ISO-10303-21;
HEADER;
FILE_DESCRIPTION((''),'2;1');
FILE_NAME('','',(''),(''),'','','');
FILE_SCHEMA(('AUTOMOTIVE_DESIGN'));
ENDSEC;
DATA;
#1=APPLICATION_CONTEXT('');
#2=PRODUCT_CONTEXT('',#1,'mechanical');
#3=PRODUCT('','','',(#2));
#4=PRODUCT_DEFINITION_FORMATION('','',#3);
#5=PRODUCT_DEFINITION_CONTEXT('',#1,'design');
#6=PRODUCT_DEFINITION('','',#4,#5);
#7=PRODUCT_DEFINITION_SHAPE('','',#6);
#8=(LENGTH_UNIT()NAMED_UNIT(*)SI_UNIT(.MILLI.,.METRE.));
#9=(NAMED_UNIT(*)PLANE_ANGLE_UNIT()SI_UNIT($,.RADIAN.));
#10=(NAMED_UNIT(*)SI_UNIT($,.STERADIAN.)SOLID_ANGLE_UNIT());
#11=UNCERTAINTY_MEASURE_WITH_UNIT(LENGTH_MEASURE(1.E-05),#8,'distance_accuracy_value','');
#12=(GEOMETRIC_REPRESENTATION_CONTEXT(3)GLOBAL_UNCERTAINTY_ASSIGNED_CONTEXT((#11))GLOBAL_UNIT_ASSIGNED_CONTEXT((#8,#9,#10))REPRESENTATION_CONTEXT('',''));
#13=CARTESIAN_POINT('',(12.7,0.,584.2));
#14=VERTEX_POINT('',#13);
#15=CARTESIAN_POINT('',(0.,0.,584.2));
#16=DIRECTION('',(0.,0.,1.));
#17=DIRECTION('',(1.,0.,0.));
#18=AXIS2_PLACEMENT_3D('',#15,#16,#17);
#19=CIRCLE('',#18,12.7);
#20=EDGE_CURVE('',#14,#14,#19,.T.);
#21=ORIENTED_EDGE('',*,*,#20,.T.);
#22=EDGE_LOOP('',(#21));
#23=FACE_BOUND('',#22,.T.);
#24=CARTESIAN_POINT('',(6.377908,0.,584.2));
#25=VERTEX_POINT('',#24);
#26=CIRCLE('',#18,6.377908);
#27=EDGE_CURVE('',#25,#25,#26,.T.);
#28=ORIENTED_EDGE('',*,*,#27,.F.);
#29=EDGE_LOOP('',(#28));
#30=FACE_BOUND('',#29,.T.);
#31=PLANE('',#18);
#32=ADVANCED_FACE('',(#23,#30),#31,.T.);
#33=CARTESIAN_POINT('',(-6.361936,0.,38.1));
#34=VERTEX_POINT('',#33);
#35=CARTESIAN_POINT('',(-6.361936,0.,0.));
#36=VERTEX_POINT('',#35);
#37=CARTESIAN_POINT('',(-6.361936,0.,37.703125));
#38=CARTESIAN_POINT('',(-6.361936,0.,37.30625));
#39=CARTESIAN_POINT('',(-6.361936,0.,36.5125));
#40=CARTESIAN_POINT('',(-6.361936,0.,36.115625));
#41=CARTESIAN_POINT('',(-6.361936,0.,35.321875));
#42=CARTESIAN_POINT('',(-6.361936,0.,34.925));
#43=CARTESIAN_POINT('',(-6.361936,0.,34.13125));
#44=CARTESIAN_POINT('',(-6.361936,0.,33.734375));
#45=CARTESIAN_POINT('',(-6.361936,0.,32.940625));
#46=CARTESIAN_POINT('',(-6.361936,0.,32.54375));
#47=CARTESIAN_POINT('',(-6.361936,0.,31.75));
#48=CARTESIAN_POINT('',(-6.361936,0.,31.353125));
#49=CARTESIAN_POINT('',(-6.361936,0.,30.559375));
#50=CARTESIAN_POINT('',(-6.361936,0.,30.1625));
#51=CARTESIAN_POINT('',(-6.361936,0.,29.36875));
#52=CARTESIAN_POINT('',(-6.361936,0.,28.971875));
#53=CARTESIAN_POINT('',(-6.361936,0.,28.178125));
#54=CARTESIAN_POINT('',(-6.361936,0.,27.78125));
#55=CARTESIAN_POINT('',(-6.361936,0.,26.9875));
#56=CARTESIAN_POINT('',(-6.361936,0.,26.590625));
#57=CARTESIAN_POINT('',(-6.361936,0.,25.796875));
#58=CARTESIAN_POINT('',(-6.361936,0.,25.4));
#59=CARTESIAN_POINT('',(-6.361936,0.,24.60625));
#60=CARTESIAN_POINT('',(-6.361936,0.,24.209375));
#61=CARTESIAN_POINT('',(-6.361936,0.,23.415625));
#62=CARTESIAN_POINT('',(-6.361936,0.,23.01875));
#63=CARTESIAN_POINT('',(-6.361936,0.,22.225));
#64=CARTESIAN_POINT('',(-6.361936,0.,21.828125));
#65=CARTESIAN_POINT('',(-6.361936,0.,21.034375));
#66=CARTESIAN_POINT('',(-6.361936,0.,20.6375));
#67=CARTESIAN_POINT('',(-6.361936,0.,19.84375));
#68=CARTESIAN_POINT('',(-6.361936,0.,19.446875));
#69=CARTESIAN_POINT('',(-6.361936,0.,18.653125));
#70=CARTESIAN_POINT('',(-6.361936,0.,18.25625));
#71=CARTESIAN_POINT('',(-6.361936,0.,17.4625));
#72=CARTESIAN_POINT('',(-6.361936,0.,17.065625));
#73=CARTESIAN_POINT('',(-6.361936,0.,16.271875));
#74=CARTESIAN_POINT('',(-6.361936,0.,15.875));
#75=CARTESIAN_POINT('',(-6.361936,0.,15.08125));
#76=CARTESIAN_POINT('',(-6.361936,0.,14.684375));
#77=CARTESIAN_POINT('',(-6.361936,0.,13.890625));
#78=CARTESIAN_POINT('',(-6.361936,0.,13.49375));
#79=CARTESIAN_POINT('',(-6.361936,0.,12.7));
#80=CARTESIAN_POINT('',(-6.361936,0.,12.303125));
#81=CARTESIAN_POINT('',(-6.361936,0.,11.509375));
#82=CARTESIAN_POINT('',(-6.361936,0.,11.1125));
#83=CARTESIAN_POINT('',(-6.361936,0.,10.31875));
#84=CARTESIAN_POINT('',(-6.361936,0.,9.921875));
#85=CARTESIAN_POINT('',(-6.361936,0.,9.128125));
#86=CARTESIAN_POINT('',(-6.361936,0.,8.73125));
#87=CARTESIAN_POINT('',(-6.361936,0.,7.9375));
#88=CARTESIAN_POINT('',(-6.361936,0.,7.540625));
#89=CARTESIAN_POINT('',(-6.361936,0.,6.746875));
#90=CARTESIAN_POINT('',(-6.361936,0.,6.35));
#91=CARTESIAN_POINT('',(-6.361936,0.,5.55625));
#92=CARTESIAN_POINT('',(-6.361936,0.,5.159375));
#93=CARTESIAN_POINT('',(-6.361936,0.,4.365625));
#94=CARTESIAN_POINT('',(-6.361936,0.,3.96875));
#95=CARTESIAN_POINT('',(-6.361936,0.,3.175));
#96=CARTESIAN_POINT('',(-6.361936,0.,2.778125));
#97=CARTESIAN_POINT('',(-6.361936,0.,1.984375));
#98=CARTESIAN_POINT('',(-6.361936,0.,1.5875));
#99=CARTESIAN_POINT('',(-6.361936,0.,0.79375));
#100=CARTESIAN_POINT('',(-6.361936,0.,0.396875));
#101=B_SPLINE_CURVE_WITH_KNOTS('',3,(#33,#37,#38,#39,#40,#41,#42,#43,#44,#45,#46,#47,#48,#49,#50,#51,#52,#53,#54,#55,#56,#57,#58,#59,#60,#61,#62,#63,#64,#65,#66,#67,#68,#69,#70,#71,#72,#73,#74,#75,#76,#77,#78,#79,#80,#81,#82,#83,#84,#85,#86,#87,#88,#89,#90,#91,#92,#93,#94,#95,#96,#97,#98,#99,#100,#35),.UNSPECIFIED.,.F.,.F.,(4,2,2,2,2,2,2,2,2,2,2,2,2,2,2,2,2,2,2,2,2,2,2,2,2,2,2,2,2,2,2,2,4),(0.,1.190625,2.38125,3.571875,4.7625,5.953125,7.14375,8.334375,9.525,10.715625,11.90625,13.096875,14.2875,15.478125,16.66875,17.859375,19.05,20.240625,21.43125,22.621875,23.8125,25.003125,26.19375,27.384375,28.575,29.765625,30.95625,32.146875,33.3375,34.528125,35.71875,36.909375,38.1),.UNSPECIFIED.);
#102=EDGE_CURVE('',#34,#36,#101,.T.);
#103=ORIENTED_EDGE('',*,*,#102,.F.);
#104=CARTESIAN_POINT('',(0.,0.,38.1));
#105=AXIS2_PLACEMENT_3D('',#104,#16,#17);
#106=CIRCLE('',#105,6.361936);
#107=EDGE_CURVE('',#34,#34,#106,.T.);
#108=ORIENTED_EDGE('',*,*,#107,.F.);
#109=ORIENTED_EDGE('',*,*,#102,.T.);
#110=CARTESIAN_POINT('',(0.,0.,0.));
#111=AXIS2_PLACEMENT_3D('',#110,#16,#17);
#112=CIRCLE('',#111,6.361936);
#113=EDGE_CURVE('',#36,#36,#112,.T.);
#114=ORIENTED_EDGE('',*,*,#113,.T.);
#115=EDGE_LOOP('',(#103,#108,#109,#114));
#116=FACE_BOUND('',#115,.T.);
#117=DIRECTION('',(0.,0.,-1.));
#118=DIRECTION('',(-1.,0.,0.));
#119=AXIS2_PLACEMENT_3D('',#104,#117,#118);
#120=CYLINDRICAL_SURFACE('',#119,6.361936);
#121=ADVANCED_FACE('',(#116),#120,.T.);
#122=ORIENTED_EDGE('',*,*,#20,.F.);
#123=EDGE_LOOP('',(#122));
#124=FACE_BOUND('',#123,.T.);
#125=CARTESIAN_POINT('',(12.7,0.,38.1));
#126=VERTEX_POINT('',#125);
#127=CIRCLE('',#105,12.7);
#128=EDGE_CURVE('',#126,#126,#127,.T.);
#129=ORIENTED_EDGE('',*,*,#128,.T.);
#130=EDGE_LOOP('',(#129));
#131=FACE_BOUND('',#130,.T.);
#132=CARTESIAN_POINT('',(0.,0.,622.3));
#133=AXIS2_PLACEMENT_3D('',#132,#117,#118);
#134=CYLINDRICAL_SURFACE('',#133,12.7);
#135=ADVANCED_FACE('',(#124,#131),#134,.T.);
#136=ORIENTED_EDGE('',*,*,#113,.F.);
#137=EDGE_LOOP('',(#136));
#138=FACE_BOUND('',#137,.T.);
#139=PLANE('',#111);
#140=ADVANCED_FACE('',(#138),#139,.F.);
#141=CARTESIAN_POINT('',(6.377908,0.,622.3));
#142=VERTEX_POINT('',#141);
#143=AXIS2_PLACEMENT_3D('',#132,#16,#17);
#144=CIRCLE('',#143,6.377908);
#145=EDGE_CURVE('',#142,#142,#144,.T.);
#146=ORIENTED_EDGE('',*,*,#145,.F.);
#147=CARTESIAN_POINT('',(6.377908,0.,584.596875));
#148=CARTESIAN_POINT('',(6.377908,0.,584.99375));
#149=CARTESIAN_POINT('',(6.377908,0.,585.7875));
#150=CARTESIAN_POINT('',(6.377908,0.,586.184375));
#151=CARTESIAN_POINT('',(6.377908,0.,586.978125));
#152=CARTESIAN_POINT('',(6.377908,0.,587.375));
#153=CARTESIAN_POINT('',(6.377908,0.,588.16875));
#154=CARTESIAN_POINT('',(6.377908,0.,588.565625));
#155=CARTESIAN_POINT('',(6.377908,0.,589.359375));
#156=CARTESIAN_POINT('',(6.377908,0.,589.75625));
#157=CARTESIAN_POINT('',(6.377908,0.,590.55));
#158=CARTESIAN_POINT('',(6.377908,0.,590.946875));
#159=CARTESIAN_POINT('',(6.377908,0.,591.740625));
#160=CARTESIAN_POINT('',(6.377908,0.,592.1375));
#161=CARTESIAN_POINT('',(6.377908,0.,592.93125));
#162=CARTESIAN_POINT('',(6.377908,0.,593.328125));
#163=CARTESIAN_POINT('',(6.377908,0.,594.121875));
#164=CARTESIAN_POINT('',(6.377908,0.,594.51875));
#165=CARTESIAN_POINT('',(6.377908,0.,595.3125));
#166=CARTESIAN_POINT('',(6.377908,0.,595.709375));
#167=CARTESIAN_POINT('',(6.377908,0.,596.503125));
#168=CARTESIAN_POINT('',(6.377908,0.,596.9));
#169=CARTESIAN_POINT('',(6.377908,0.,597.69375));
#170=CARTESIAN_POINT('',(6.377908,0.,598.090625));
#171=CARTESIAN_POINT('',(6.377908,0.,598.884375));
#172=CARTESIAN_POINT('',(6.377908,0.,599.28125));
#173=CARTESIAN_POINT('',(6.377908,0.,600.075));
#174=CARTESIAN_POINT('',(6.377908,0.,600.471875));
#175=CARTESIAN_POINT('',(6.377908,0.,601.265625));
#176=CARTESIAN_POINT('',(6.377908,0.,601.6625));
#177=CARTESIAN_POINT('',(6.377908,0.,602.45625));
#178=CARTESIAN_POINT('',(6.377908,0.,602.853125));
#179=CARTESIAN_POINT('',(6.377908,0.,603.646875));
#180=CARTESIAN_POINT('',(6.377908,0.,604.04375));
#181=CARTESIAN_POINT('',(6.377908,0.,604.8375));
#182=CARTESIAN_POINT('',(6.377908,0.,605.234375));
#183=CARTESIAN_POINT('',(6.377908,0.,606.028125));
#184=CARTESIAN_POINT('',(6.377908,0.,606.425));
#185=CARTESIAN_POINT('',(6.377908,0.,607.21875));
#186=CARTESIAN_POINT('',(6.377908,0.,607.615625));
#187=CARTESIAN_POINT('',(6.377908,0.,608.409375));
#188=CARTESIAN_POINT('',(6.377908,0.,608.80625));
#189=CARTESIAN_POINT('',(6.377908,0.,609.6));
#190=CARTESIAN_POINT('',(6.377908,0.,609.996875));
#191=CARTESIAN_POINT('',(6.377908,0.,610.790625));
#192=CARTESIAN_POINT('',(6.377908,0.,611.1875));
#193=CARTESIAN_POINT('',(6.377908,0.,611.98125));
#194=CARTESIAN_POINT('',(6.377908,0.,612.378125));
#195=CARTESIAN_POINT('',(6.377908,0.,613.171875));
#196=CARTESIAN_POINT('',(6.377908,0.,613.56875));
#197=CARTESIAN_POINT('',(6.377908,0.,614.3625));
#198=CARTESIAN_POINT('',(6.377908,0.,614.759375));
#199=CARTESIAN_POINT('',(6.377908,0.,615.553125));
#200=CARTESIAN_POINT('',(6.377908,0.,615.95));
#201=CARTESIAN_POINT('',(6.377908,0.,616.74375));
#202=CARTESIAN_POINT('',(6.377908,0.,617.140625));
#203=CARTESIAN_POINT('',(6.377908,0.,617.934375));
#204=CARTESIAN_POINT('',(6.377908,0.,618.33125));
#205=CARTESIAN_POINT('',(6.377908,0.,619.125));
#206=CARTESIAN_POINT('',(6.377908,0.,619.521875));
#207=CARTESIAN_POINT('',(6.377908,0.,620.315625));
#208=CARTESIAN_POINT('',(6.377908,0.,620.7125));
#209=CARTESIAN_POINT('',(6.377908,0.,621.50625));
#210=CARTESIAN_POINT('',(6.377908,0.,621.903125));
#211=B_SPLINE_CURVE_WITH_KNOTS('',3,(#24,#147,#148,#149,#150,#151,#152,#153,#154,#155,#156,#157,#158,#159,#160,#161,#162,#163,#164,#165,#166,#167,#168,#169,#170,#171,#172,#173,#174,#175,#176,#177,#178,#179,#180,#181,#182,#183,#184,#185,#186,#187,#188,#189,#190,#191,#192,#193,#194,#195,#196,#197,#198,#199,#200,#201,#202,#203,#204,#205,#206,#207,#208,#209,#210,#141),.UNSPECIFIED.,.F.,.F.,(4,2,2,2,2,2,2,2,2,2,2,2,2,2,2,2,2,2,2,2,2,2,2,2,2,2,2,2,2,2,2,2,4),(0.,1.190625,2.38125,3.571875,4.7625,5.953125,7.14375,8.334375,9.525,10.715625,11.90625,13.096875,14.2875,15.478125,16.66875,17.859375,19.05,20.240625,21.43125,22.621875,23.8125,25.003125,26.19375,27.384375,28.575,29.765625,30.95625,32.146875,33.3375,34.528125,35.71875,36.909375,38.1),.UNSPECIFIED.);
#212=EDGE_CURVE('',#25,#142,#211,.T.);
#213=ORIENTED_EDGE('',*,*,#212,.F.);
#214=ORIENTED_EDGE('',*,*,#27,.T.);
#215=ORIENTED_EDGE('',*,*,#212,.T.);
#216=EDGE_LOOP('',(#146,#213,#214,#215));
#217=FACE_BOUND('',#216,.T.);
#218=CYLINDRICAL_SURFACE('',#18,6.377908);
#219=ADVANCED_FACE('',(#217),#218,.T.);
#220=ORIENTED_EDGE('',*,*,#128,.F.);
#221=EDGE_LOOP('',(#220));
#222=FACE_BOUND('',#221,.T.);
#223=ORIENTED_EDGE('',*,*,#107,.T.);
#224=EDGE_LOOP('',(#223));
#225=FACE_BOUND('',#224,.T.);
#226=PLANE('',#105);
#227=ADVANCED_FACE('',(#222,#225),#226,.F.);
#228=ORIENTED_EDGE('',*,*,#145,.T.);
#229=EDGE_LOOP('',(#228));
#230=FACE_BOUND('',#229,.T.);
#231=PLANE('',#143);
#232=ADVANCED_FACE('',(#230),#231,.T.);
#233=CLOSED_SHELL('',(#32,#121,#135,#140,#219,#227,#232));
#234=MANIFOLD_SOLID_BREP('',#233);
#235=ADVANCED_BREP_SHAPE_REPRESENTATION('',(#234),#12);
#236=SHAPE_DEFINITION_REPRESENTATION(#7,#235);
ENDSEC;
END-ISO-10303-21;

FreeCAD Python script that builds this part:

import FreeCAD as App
import Part
import Sketcher
from FreeCAD import Vector
Q = App.Units.Quantity

doc = App.newDocument("Part")
body = doc.addObject("PartDesign::Body", "Body")

# Sketch on XY plane
sketch1 = body.newObject("Sketcher::SketchObject", "Sketch")
sketch1.AttachmentSupport = (doc.getObject("XY_Plane"), [""])
sketch1.MapMode = "FlatFace"
sketch1.addGeometry(Part.Circle(Vector(0, 0, 0), Vector(0, 0, 1), 13), False)
sketch1.addConstraint(Sketcher.Constraint("Coincident", 0, 3, -1, 1))
sketch1.addConstraint(Sketcher.Constraint("Diameter", 0, Q("1 in")))
pad1 = body.newObject("PartDesign::Pad", "Pad")
pad1.Profile = sketch1
pad1.Length = Q("24.5 in")

# Sketch on XY plane
sketch2 = body.newObject("Sketcher::SketchObject", "Sketch001")
sketch2.AttachmentSupport = (doc.getObject("XY_Plane"), [""])
sketch2.MapMode = "FlatFace"
sketch2.addGeometry(Part.LineSegment(Vector(-76, 76, 0), Vector(-76, -76, 0)), False)
sketch2.addGeometry(Part.LineSegment(Vector(-76, -76, 0), Vector(76, -76, 0)), False)
sketch2.addGeometry(Part.LineSegment(Vector(76, -76, 0), Vector(76, 76, 0)), False)
sketch2.addGeometry(Part.LineSegment(Vector(76, 76, 0), Vector(-76, 76, 0)), False)
sketch2.addGeometry(Part.Circle(Vector(0, 0, 0), Vector(0, 0, 1), 6), False)
sketch2.addConstraint(Sketcher.Constraint("Coincident", 0, 2, 1, 1))
sketch2.addConstraint(Sketcher.Constraint("Coincident", 1, 2, 2, 1))
sketch2.addConstraint(Sketcher.Constraint("Coincident", 2, 2, 3, 1))
sketch2.addConstraint(Sketcher.Constraint("Coincident", 3, 2, 0, 1))
sketch2.addConstraint(Sketcher.Constraint("Vertical", 0))
sketch2.addConstraint(Sketcher.Constraint("Horizontal", 1))
sketch2.addConstraint(Sketcher.Constraint("Vertical", 2))
sketch2.addConstraint(Sketcher.Constraint("Horizontal", 3))
sketch2.addConstraint(Sketcher.Constraint("Coincident", 4, 3, -1, 1))
sketch2.addConstraint(Sketcher.Constraint("Symmetric", 0, 2, 2, 2, -1, 1))
sketch2.addConstraint(Sketcher.Constraint("Equal", 3, 0))
sketch2.addConstraint(Sketcher.Constraint("Diameter", 4, Q("12.723871 mm")))
sketch2.addConstraint(Sketcher.Constraint("DistanceX", 1, 1, 1, 2, Q("152.068 mm")))
pocket1 = body.newObject("PartDesign::Pocket", "Pocket")
pocket1.Profile = sketch2
pocket1.Length = Q("1.5 in")
pocket1.Reversed = True

# Sketch on XY plane
sketch3 = body.newObject("Sketcher::SketchObject", "Sketch002")
sketch3.AttachmentSupport = (doc.getObject("XY_Plane"), [""])
sketch3.MapMode = "FlatFace"
sketch3.AttachmentOffset = App.Placement(Vector(0, 0, 24.5 * 25.4), App.Rotation())
sketch3.addGeometry(Part.LineSegment(Vector(-76, 76, 0), Vector(-76, -76, 0)), False)
sketch3.addGeometry(Part.LineSegment(Vector(-76, -76, 0), Vector(76, -76, 0)), False)
sketch3.addGeometry(Part.LineSegment(Vector(76, -76, 0), Vector(76, 76, 0)), False)
sketch3.addGeometry(Part.LineSegment(Vector(76, 76, 0), Vector(-76, 76, 0)), False)
sketch3.addGeometry(Part.Circle(Vector(0, 0, 0), Vector(0, 0, 1), 6), False)
sketch3.addConstraint(Sketcher.Constraint("Coincident", 0, 2, 1, 1))
sketch3.addConstraint(Sketcher.Constraint("Coincident", 1, 2, 2, 1))
sketch3.addConstraint(Sketcher.Constraint("Coincident", 2, 2, 3, 1))
sketch3.addConstraint(Sketcher.Constraint("Coincident", 3, 2, 0, 1))
sketch3.addConstraint(Sketcher.Constraint("Vertical", 0))
sketch3.addConstraint(Sketcher.Constraint("Horizontal", 1))
sketch3.addConstraint(Sketcher.Constraint("Vertical", 2))
sketch3.addConstraint(Sketcher.Constraint("Horizontal", 3))
sketch3.addConstraint(Sketcher.Constraint("Coincident", 4, 3, -1, 1))
sketch3.addConstraint(Sketcher.Constraint("Symmetric", 0, 2, 2, 2, -1, 1))
sketch3.addConstraint(Sketcher.Constraint("Equal", 3, 0))
sketch3.addConstraint(Sketcher.Constraint("Diameter", 4, Q("12.755815 mm")))
sketch3.addConstraint(Sketcher.Constraint("DistanceX", 1, 1, 1, 2, Q("152.068 mm")))
pocket2 = body.newObject("PartDesign::Pocket", "Pocket001")
pocket2.Profile = sketch3
pocket2.Length = Q("1.5 in")

doc.recompute()
